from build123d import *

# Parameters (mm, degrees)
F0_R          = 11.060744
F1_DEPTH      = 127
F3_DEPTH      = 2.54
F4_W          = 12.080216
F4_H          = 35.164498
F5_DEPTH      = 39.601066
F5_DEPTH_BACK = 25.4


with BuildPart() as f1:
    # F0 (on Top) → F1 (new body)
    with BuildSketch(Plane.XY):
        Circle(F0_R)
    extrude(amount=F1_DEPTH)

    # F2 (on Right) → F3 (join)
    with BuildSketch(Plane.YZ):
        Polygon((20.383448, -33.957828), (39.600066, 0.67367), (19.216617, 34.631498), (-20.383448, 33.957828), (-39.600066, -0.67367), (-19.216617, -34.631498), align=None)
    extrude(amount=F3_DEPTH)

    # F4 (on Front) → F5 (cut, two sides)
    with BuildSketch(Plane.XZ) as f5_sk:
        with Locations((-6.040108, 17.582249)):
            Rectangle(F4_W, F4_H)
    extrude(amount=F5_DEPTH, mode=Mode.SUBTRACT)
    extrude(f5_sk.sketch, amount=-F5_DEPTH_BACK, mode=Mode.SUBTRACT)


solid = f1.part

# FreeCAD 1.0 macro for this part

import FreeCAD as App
import Part
import Sketcher
Q = App.Units.Quantity

doc = App.newDocument("Part")
body = doc.addObject("PartDesign::Body", "Body")

# Sketch on XY plane
sketch1 = body.newObject("Sketcher::SketchObject", "Sketch")
sketch1.AttachmentSupport = (doc.getObject("XY_Plane"), [""])
sketch1.MapMode = "FlatFace"
sketch1.addGeometry(Part.Circle(App.Vector(0, 0, 0), App.Vector(0, 0, 1), 11), False)
sketch1.addConstraint([
    Sketcher.Constraint("Coincident", 0, 3, -1, 1),
    Sketcher.Constraint("Diameter", 0, 22.121488),
])
pad1 = body.newObject("PartDesign::Pad", "Pad")
pad1.Profile = sketch1
pad1.Length = Q("5 in")

# Sketch on YZ plane
sketch2 = body.newObject("Sketcher::SketchObject", "Sketch001")
sketch2.AttachmentSupport = (doc.getObject("YZ_Plane"), [""])
sketch2.MapMode = "FlatFace"
sketch2.addGeometry([
    Part.LineSegment(App.Vector(20, -34, 0), App.Vector(40, 1, 0)),  # 0
    Part.LineSegment(App.Vector(40, 1, 0), App.Vector(19, 35, 0)),  # 1
    Part.LineSegment(App.Vector(19, 35, 0), App.Vector(-20, 34, 0)),  # 2
    Part.LineSegment(App.Vector(-20, 34, 0), App.Vector(-40, -1, 0)),  # 3
    Part.LineSegment(App.Vector(-40, -1, 0), App.Vector(-19, -35, 0)),  # 4
    Part.LineSegment(App.Vector(-19, -35, 0), App.Vector(20, -34, 0)),  # 5
], False)
sketch2.addConstraint([
    Sketcher.Constraint("Coincident", 0, 2, 1, 1),
    Sketcher.Constraint("Coincident", 1, 2, 2, 1),
    Sketcher.Constraint("Coincident", 2, 2, 3, 1),
    Sketcher.Constraint("Coincident", 3, 2, 4, 1),
    Sketcher.Constraint("Coincident", 4, 2, 5, 1),
    Sketcher.Constraint("Coincident", 5, 2, 0, 1),
    Sketcher.Constraint("Symmetric", 0, 2, 3, 2, -1, 1),
    Sketcher.Constraint("Symmetric", 1, 2, 4, 2, -1, 1),
    Sketcher.Constraint("Symmetric", 2, 2, 5, 2, -1, 1),
    Sketcher.Constraint("Equal", 0, 1),
    Sketcher.Constraint("Equal", 1, 2),
    Sketcher.Constraint("DistanceY", 0, 2, 2, 2, Q("1.3103999 in")),
    Sketcher.Constraint("DistanceY", -1, 1, 0, 2, 0.67367),
    Sketcher.Constraint("DistanceX", 2, 2, -1, 1, 20.383448),
    Sketcher.Constraint("DistanceX", 1, 2, 0, 2, 20.383449),
])
pad2 = body.newObject("PartDesign::Pad", "Pad001")
pad2.Profile = sketch2
pad2.Length = Q("0.1 in")

# Sketch on XZ plane
sketch3 = body.newObject("Sketcher::SketchObject", "Sketch002")
sketch3.AttachmentSupport = (doc.getObject("XZ_Plane"), [""])
sketch3.MapMode = "FlatFace"
sketch3.addGeometry([
    Part.LineSegment(App.Vector(-12, 35, 0), App.Vector(-12, 0, 0)),
    Part.LineSegment(App.Vector(-12, 0, 0), App.Vector(0, 0, 0)),
    Part.LineSegment(App.Vector(0, 0, 0), App.Vector(0, 35, 0)),
    Part.LineSegment(App.Vector(0, 35, 0), App.Vector(-12, 35, 0)),
], False)
sketch3.addConstraint([
    Sketcher.Constraint("Coincident", 0, 2, 1, 1),
    Sketcher.Constraint("Coincident", 1, 2, 2, 1),
    Sketcher.Constraint("Coincident", 2, 2, 3, 1),
    Sketcher.Constraint("Coincident", 3, 2, 0, 1),
    Sketcher.Constraint("Vertical", 0),
    Sketcher.Constraint("Horizontal", 1),
    Sketcher.Constraint("Vertical", 2),
    Sketcher.Constraint("Horizontal", 3),
    Sketcher.Constraint("Coincident", 1, 2, -1, 1),
    Sketcher.Constraint("DistanceY", 0, 2, 0, 1, 35.164498),
    Sketcher.Constraint("DistanceX", 1, 1, 1, 2, 12.080216),
])
pocket1 = body.newObject("PartDesign::Pocket", "Pocket")
pocket1.Profile = sketch3
pocket1.Type = "ThroughAll"
pocket1.Midplane = True

doc.recompute()
